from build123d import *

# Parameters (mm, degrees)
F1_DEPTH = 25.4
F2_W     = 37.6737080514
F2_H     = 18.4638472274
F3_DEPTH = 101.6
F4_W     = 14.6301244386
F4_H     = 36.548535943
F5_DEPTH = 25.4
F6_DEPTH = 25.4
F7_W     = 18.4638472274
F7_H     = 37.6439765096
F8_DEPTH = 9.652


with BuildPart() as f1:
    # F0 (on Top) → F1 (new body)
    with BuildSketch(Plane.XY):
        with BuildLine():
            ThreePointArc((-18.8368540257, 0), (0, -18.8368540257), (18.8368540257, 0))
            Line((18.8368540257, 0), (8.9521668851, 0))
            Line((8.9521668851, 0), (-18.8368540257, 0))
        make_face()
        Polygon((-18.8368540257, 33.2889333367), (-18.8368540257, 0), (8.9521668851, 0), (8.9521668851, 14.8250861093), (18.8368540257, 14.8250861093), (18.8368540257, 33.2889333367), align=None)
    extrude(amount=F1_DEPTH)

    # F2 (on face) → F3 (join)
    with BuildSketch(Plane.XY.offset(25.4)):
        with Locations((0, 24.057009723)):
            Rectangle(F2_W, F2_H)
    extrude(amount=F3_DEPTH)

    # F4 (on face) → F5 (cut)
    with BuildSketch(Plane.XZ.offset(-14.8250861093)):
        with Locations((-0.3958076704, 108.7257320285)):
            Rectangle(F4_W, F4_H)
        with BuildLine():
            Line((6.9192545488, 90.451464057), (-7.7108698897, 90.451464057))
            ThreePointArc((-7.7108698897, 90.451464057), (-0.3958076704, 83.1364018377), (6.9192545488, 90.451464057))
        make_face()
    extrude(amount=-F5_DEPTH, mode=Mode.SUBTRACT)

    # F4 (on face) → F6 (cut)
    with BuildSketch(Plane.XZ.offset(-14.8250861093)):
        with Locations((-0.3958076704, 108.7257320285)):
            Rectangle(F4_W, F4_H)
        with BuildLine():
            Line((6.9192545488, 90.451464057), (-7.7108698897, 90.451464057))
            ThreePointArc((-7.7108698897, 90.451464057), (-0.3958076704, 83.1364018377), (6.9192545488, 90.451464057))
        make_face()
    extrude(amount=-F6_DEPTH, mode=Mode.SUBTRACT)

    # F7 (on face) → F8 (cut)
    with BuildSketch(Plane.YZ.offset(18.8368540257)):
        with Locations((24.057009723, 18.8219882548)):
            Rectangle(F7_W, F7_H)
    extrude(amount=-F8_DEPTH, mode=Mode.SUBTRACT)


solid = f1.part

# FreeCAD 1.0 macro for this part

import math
import FreeCAD as App
import Part
import Sketcher
from FreeCAD import Vector
Q = App.Units.Quantity

doc = App.newDocument("Part")
params = doc.addObject("Spreadsheet::Sheet", "Params")
for row, (alias, value) in enumerate([
    ("pad1_length", "1 in"),
    ("pad2_length", "4 in"),
    ("pocket1_length", "1 in"),
    ("pocket2_length", "1 in"),
    ("pocket3_length", "0.38 in"),
], start=1):
    params.set(f"A{row}", alias)
    params.set(f"B{row}", "=" + value)
    params.setAlias(f"B{row}", alias)

body = doc.addObject("PartDesign::Body", "Body")

# Sketch on XY plane
sketch1 = body.newObject("Sketcher::SketchObject", "Sketch")
sketch1.AttachmentSupport = (doc.getObject("XY_Plane"), [""])
sketch1.MapMode = "FlatFace"
sketch1.addGeometry([
    Part.ArcOfCircle(Part.Circle(Vector(0, 0, 0), Vector(0, 0, 1), 18.836854), math.radians(180), math.radians(360)),  # 0
    Part.LineSegment(Vector(18.836854, 0, 0), Vector(8.952167, 0, 0)),  # 1
    Part.LineSegment(Vector(8.952167, 0, 0), Vector(8.952167, 14.825086, 0)),  # 2
    Part.LineSegment(Vector(8.952167, 14.825086, 0), Vector(18.836854, 14.825086, 0)),  # 3
    Part.LineSegment(Vector(18.836854, 14.825086, 0), Vector(18.836854, 33.288933, 0)),  # 4
    Part.LineSegment(Vector(18.836854, 33.288933, 0), Vector(-18.836854, 33.288933, 0)),  # 5
    Part.LineSegment(Vector(-18.836854, 33.288933, 0), Vector(-18.836854, 0, 0)),  # 6
], False)
sketch1.addConstraint([
    Sketcher.Constraint("Coincident", 0, 2, 1, 1),
    Sketcher.Constraint("Coincident", 1, 2, 2, 1),
    Sketcher.Constraint("Coincident", 2, 2, 3, 1),
    Sketcher.Constraint("Coincident", 3, 2, 4, 1),
    Sketcher.Constraint("Coincident", 4, 2, 5, 1),
    Sketcher.Constraint("Coincident", 5, 2, 6, 1),
    Sketcher.Constraint("Tangent", 6, 2, 0, 1),
    Sketcher.Constraint("Horizontal", 1),
    Sketcher.Constraint("Vertical", 2),
    Sketcher.Constraint("Horizontal", 3),
    Sketcher.Constraint("Vertical", 4),
    Sketcher.Constraint("Horizontal", 5),
    Sketcher.Constraint("Vertical", 6),
    Sketcher.Constraint("Coincident", 0, 3, -1, 1),
    Sketcher.Constraint("PointOnObject", 0, 2, -1),
    Sketcher.Constraint("Vertical", 0, 2, 3, 2),
    Sketcher.Constraint("Radius", 0, 18.836854),
    Sketcher.Constraint("DistanceX", 1, 2, 1, 1, 9.884687),
    Sketcher.Constraint("DistanceY", 2, 1, 2, 2, 14.825086),
    Sketcher.Constraint("DistanceY", 4, 1, 4, 2, 18.463847),
])
pad1 = body.newObject("PartDesign::Pad", "Pad")
pad1.Profile = sketch1
pad1.setExpression("Length", "Params.pad1_length")

# Sketch on XY plane
sketch2 = body.newObject("Sketcher::SketchObject", "Sketch001")
sketch2.AttachmentSupport = (doc.getObject("XY_Plane"), [""])
sketch2.MapMode = "FlatFace"
sketch2.AttachmentOffset = App.Placement(Vector(0, 0, 1 * 25.4), App.Rotation())
sketch2.addGeometry([
    Part.LineSegment(Vector(-18.836854, 33.288933, 0), Vector(-18.836854, 14.825086, 0)),
    Part.LineSegment(Vector(-18.836854, 14.825086, 0), Vector(18.836854, 14.825086, 0)),
    Part.LineSegment(Vector(18.836854, 14.825086, 0), Vector(18.836854, 33.288933, 0)),
    Part.LineSegment(Vector(18.836854, 33.288933, 0), Vector(-18.836854, 33.288933, 0)),
], False)
sketch2.addConstraint([
    Sketcher.Constraint("Coincident", 0, 2, 1, 1),
    Sketcher.Constraint("Coincident", 1, 2, 2, 1),
    Sketcher.Constraint("Coincident", 2, 2, 3, 1),
    Sketcher.Constraint("Coincident", 3, 2, 0, 1),
    Sketcher.Constraint("Vertical", 0),
    Sketcher.Constraint("Horizontal", 1),
    Sketcher.Constraint("Vertical", 2),
    Sketcher.Constraint("Horizontal", 3),
    Sketcher.Constraint("DistanceX", 1, 1, 1, 2, 37.673708),
    Sketcher.Constraint("DistanceY", 0, 2, 0, 1, 18.463847),
    Sketcher.Constraint("DistanceX", 0, 2, -1, 1, 18.836854),
    Sketcher.Constraint("DistanceY", -1, 1, 0, 2, 14.825086),
])
pad2 = body.newObject("PartDesign::Pad", "Pad001")
pad2.Profile = sketch2
pad2.setExpression("Length", "Params.pad2_length")

# Sketch on XZ plane
sketch3 = body.newObject("Sketcher::SketchObject", "Sketch002")
sketch3.AttachmentSupport = (doc.getObject("XZ_Plane"), [""])
sketch3.MapMode = "FlatFace"
sketch3.AttachmentOffset = App.Placement(Vector(0, 0, -14.825086), App.Rotation())
sketch3.addGeometry([
    Part.LineSegment(Vector(-7.71087, 127, 0), Vector(-7.71087, 90.451464, 0)),
    Part.ArcOfCircle(Part.Circle(Vector(-0.395808, 90.451464, 0), Vector(0, 0, 1), 7.315062), math.radians(180), math.radians(360)),
    Part.LineSegment(Vector(6.919255, 90.451464, 0), Vector(6.919255, 127, 0)),
    Part.LineSegment(Vector(6.919255, 127, 0), Vector(-7.71087, 127, 0)),
], False)
sketch3.addConstraint([
    Sketcher.Constraint("Tangent", 0, 2, 1, 1),
    Sketcher.Constraint("Tangent", 1, 2, 2, 1),
    Sketcher.Constraint("Coincident", 2, 2, 3, 1),
    Sketcher.Constraint("Coincident", 3, 2, 0, 1),
    Sketcher.Constraint("Vertical", 0),
    Sketcher.Constraint("Vertical", 2),
    Sketcher.Constraint("Horizontal", 3),
    Sketcher.Constraint("DistanceY", -1, 1, 2, 2, Q("5 in")),
    Sketcher.Constraint("Radius", 1, 7.315062),
    Sketcher.Constraint("DistanceY", 0, 2, 0, 1, 36.548536),
    Sketcher.Constraint("DistanceX", 0, 2, -1, 1, 7.71087),
])
pocket1 = body.newObject("PartDesign::Pocket", "Pocket")
pocket1.Profile = sketch3
pocket1.setExpression("Length", "Params.pocket1_length")

# Sketch on XZ plane
sketch4 = body.newObject("Sketcher::SketchObject", "Sketch003")
sketch4.AttachmentSupport = (doc.getObject("XZ_Plane"), [""])
sketch4.MapMode = "FlatFace"
sketch4.AttachmentOffset = App.Placement(Vector(0, 0, -14.825086), App.Rotation())
sketch4.addGeometry([
    Part.LineSegment(Vector(-7.71087, 127, 0), Vector(-7.71087, 90.451464, 0)),
    Part.ArcOfCircle(Part.Circle(Vector(-0.395808, 90.451464, 0), Vector(0, 0, 1), 7.315062), math.radians(180), math.radians(360)),
    Part.LineSegment(Vector(6.919255, 90.451464, 0), Vector(6.919255, 127, 0)),
    Part.LineSegment(Vector(6.919255, 127, 0), Vector(-7.71087, 127, 0)),
], False)
sketch4.addConstraint([
    Sketcher.Constraint("Tangent", 0, 2, 1, 1),
    Sketcher.Constraint("Tangent", 1, 2, 2, 1),
    Sketcher.Constraint("Coincident", 2, 2, 3, 1),
    Sketcher.Constraint("Coincident", 3, 2, 0, 1),
    Sketcher.Constraint("Vertical", 0),
    Sketcher.Constraint("Vertical", 2),
    Sketcher.Constraint("Horizontal", 3),
    Sketcher.Constraint("DistanceY", -1, 1, 2, 2, Q("5 in")),
    Sketcher.Constraint("Radius", 1, 7.315062),
    Sketcher.Constraint("DistanceY", 0, 2, 0, 1, 36.548536),
    Sketcher.Constraint("DistanceX", 0, 2, -1, 1, 7.71087),
])
pocket2 = body.newObject("PartDesign::Pocket", "Pocket001")
pocket2.Profile = sketch4
pocket2.setExpression("Length", "Params.pocket2_length")

# Sketch on YZ plane
sketch5 = body.newObject("Sketcher::SketchObject", "Sketch004")
sketch5.AttachmentSupport = (doc.getObject("YZ_Plane"), [""])
sketch5.MapMode = "FlatFace"
sketch5.AttachmentOffset = App.Placement(Vector(0, 0, 18.836854), App.Rotation())
sketch5.addGeometry([
    Part.LineSegment(Vector(14.825086, 37.643977, 0), Vector(14.825086, 0, 0)),
    Part.LineSegment(Vector(14.825086, 0, 0), Vector(33.288933, 0, 0)),
    Part.LineSegment(Vector(33.288933, 0, 0), Vector(33.288933, 37.643977, 0)),
    Part.LineSegment(Vector(33.288933, 37.643977, 0), Vector(14.825086, 37.643977, 0)),
], False)
sketch5.addConstraint([
    Sketcher.Constraint("Coincident", 0, 2, 1, 1),
    Sketcher.Constraint("Coincident", 1, 2, 2, 1),
    Sketcher.Constraint("Coincident", 2, 2, 3, 1),
    Sketcher.Constraint("Coincident", 3, 2, 0, 1),
    Sketcher.Constraint("Vertical", 0),
    Sketcher.Constraint("Horizontal", 1),
    Sketcher.Constraint("Vertical", 2),
    Sketcher.Constraint("Horizontal", 3),
    Sketcher.Constraint("PointOnObject", 0, 2, -1),
    Sketcher.Constraint("DistanceX", 1, 1, 1, 2, 18.463847),
    Sketcher.Constraint("DistanceY", 0, 2, 0, 1, 37.643977),
    Sketcher.Constraint("DistanceX", -1, 1, 0, 2, 14.825086),
])
pocket3 = body.newObject("PartDesign::Pocket", "Pocket002")
pocket3.Profile = sketch5
pocket3.setExpression("Length", "Params.pocket3_length")

doc.recompute()
